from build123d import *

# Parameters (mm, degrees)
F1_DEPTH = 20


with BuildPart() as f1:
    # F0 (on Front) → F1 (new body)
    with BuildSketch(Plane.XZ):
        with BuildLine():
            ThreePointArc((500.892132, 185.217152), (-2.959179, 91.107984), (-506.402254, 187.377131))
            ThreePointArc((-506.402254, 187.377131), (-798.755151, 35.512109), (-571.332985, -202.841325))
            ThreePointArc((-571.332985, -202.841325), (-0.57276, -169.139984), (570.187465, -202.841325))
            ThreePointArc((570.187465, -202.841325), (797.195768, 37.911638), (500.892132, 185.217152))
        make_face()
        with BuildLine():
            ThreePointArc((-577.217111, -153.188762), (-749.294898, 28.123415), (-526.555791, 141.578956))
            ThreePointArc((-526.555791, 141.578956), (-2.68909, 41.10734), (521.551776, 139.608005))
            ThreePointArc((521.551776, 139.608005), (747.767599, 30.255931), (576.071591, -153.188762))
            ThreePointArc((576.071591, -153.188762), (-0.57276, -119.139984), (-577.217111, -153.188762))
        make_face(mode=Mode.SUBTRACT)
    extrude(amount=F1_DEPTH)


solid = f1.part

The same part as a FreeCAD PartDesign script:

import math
import FreeCAD as App
import Part
import Sketcher
from FreeCAD import Vector

doc = App.newDocument("Part")
params = doc.addObject("Spreadsheet::Sheet", "Params")
for row, (alias, value) in enumerate([
    ("sketch1_radius", "1380 mm"),
    ("pad1_length", "20 mm"),
], start=1):
    params.set(f"A{row}", alias)
    params.set(f"B{row}", "=" + value)
    params.setAlias(f"B{row}", alias)

body = doc.addObject("PartDesign::Body", "Body")

# Sketch on XZ plane
sketch1 = doc.addObject("Sketcher::SketchObject", "Sketch")
body.addObject(sketch1)
sketch1.AttachmentSupport = (doc.XZ_Plane, [""])
sketch1.MapMode = "FlatFace"
sketch1.addGeometry([
    Part.ArcOfCircle(Part.Circle(Vector(0, 1471.104811, 0), Vector(0, 0, 1), 1380), math.radians(-111.528141), math.radians(-68.717582)),  # 0
    Part.ArcOfCircle(Part.Circle(Vector(-595.57276, 1.703403, 0), Vector(0, 0, 1), 205.976), math.radians(64.347178), math.radians(276.758373)),  # 1
    Part.ArcOfCircle(Part.Circle(Vector(-0.57276, -5019.14009, 0), Vector(0, 0, 1), 4850.000106), math.radians(83.241627), math.radians(96.758373)),  # 2
    Part.ArcOfCircle(Part.Circle(Vector(594.42724, 1.703403, 0), Vector(0, 0, 1), 205.976), math.radians(-96.758373), math.radians(117.007481)),  # 3
    Part.ArcOfCircle(Part.Circle(Vector(-0.57276, -5019.14002, 0), Vector(0, 0, 1), 4900.000036), math.radians(83.241627), math.radians(96.758373)),  # 4
    Part.ArcOfCircle(Part.Circle(Vector(-595.572761, 1.703403, 0), Vector(0, 0, 1), 155.976), math.radians(63.737487), math.radians(276.758373)),  # 5
    Part.ArcOfCircle(Part.Circle(Vector(0, 1471.104819, 0), Vector(0, 0, 1), 1430.000007), math.radians(-111.605933), math.radians(-68.609554)),  # 6
    Part.ArcOfCircle(Part.Circle(Vector(594.42724, 1.703403, 0), Vector(0, 0, 1), 155.976), math.radians(-96.758373), math.radians(117.85414)),  # 7
], False)
sketch1.addConstraint([
    Sketcher.Constraint("Coincident", 0, 1, 1, 1),
    Sketcher.Constraint("Tangent", 1, 2, 2, 2),
    Sketcher.Constraint("Tangent", 2, 1, 3, 1),
    Sketcher.Constraint("Coincident", 3, 2, 0, 2),
    Sketcher.Constraint("Tangent", 4, 2, 5, 2),
    Sketcher.Constraint("Coincident", 5, 1, 6, 1),
    Sketcher.Constraint("Coincident", 6, 2, 7, 2),
    Sketcher.Constraint("Tangent", 7, 1, 4, 1),
    Sketcher.Constraint("Coincident", 5, 3, 1, 3),
    Sketcher.Constraint("Coincident", 6, 3, 0, 3),
    Sketcher.Constraint("Coincident", 7, 3, 3, 3),
    Sketcher.Constraint("Equal", 1, 3),
    Sketcher.Constraint("Equal", 5, 7),
    Sketcher.Constraint("PointOnObject", 0, 3, -2),
    Sketcher.Constraint("Horizontal", 1, 3, 3, 3),
    Sketcher.Constraint("Radius", 0, 1380.0),
    Sketcher.Constraint("Radius", 1, 205.976),
    Sketcher.Constraint("Radius", 5, 155.976),
    Sketcher.Constraint("DistanceX", 1, 3, 2, 3, 595.0),
    Sketcher.Constraint("Radius", 2, 4850.000106),
    Sketcher.Constraint("Radius", 4, 4900.000036),
    Sketcher.Constraint("Radius", 6, 1430.000007),
    Sketcher.Constraint("DistanceY", 2, 3, 0, 3, 6490.244901),
    Sketcher.Constraint("DistanceY", -1, 1, 0, 3, 1471.104811),
    Sketcher.Constraint("DistanceX", 1, 3, -1, 1, 595.57276),
])
sketch1.setExpression("Constraints[15]", "Params.sketch1_radius")
pad1 = doc.addObject("PartDesign::Pad", "Pad")
body.addObject(pad1)
pad1.Profile = sketch1
pad1.setExpression("Length", "Params.pad1_length")

doc.recompute()
